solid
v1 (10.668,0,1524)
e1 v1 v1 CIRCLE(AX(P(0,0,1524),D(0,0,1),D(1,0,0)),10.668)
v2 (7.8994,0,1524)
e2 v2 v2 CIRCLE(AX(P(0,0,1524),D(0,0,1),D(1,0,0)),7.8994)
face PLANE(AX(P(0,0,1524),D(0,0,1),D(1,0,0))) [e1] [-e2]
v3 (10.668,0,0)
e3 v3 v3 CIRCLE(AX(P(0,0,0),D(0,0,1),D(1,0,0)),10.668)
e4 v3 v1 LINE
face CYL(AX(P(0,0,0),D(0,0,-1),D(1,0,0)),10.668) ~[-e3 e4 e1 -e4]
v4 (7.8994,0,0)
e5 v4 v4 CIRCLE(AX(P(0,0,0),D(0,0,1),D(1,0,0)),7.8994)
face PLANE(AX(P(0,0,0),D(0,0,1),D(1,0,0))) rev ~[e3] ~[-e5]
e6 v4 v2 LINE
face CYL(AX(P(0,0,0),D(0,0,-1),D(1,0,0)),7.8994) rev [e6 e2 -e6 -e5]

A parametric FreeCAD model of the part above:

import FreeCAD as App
import Part
import Sketcher
from FreeCAD import Vector
Q = App.Units.Quantity

doc = App.newDocument("Part")
params = doc.addObject("Spreadsheet::Sheet", "Params")
for row, (alias, value) in enumerate([
    ("sketch1_diameter", "0.84 in"),
    ("sketch1_diameter2", "0.622 in"),
    ("pad1_length", "60 in"),
], start=1):
    params.set(f"A{row}", alias)
    params.set(f"B{row}", "=" + value)
    params.setAlias(f"B{row}", alias)

body = doc.addObject("PartDesign::Body", "Body")

# Sketch on XY plane
sketch1 = doc.addObject("Sketcher::SketchObject", "Sketch")
body.addObject(sketch1)
sketch1.AttachmentSupport = (doc.XY_Plane, [""])
sketch1.MapMode = "FlatFace"
sketch1.addGeometry([
    Part.Circle(Vector(0, 0, 0), Vector(0, 0, 1), 10.668),
    Part.Circle(Vector(0, 0, 0), Vector(0, 0, 1), 7.8994),
], False)
sketch1.addConstraint([
    Sketcher.Constraint("Coincident", 0, 3, -1, 1),
    Sketcher.Constraint("Coincident", 1, 3, -1, 1),
    Sketcher.Constraint("Diameter", 0, Q("0.84 in")),
    Sketcher.Constraint("Diameter", 1, Q("0.622 in")),
])
sketch1.setExpression("Constraints[2]", "Params.sketch1_diameter")
sketch1.setExpression("Constraints[3]", "Params.sketch1_diameter2")
pad1 = doc.addObject("PartDesign::Pad", "Pad")
body.addObject(pad1)
pad1.Profile = sketch1
pad1.setExpression("Length", "Params.pad1_length")

doc.recompute()
